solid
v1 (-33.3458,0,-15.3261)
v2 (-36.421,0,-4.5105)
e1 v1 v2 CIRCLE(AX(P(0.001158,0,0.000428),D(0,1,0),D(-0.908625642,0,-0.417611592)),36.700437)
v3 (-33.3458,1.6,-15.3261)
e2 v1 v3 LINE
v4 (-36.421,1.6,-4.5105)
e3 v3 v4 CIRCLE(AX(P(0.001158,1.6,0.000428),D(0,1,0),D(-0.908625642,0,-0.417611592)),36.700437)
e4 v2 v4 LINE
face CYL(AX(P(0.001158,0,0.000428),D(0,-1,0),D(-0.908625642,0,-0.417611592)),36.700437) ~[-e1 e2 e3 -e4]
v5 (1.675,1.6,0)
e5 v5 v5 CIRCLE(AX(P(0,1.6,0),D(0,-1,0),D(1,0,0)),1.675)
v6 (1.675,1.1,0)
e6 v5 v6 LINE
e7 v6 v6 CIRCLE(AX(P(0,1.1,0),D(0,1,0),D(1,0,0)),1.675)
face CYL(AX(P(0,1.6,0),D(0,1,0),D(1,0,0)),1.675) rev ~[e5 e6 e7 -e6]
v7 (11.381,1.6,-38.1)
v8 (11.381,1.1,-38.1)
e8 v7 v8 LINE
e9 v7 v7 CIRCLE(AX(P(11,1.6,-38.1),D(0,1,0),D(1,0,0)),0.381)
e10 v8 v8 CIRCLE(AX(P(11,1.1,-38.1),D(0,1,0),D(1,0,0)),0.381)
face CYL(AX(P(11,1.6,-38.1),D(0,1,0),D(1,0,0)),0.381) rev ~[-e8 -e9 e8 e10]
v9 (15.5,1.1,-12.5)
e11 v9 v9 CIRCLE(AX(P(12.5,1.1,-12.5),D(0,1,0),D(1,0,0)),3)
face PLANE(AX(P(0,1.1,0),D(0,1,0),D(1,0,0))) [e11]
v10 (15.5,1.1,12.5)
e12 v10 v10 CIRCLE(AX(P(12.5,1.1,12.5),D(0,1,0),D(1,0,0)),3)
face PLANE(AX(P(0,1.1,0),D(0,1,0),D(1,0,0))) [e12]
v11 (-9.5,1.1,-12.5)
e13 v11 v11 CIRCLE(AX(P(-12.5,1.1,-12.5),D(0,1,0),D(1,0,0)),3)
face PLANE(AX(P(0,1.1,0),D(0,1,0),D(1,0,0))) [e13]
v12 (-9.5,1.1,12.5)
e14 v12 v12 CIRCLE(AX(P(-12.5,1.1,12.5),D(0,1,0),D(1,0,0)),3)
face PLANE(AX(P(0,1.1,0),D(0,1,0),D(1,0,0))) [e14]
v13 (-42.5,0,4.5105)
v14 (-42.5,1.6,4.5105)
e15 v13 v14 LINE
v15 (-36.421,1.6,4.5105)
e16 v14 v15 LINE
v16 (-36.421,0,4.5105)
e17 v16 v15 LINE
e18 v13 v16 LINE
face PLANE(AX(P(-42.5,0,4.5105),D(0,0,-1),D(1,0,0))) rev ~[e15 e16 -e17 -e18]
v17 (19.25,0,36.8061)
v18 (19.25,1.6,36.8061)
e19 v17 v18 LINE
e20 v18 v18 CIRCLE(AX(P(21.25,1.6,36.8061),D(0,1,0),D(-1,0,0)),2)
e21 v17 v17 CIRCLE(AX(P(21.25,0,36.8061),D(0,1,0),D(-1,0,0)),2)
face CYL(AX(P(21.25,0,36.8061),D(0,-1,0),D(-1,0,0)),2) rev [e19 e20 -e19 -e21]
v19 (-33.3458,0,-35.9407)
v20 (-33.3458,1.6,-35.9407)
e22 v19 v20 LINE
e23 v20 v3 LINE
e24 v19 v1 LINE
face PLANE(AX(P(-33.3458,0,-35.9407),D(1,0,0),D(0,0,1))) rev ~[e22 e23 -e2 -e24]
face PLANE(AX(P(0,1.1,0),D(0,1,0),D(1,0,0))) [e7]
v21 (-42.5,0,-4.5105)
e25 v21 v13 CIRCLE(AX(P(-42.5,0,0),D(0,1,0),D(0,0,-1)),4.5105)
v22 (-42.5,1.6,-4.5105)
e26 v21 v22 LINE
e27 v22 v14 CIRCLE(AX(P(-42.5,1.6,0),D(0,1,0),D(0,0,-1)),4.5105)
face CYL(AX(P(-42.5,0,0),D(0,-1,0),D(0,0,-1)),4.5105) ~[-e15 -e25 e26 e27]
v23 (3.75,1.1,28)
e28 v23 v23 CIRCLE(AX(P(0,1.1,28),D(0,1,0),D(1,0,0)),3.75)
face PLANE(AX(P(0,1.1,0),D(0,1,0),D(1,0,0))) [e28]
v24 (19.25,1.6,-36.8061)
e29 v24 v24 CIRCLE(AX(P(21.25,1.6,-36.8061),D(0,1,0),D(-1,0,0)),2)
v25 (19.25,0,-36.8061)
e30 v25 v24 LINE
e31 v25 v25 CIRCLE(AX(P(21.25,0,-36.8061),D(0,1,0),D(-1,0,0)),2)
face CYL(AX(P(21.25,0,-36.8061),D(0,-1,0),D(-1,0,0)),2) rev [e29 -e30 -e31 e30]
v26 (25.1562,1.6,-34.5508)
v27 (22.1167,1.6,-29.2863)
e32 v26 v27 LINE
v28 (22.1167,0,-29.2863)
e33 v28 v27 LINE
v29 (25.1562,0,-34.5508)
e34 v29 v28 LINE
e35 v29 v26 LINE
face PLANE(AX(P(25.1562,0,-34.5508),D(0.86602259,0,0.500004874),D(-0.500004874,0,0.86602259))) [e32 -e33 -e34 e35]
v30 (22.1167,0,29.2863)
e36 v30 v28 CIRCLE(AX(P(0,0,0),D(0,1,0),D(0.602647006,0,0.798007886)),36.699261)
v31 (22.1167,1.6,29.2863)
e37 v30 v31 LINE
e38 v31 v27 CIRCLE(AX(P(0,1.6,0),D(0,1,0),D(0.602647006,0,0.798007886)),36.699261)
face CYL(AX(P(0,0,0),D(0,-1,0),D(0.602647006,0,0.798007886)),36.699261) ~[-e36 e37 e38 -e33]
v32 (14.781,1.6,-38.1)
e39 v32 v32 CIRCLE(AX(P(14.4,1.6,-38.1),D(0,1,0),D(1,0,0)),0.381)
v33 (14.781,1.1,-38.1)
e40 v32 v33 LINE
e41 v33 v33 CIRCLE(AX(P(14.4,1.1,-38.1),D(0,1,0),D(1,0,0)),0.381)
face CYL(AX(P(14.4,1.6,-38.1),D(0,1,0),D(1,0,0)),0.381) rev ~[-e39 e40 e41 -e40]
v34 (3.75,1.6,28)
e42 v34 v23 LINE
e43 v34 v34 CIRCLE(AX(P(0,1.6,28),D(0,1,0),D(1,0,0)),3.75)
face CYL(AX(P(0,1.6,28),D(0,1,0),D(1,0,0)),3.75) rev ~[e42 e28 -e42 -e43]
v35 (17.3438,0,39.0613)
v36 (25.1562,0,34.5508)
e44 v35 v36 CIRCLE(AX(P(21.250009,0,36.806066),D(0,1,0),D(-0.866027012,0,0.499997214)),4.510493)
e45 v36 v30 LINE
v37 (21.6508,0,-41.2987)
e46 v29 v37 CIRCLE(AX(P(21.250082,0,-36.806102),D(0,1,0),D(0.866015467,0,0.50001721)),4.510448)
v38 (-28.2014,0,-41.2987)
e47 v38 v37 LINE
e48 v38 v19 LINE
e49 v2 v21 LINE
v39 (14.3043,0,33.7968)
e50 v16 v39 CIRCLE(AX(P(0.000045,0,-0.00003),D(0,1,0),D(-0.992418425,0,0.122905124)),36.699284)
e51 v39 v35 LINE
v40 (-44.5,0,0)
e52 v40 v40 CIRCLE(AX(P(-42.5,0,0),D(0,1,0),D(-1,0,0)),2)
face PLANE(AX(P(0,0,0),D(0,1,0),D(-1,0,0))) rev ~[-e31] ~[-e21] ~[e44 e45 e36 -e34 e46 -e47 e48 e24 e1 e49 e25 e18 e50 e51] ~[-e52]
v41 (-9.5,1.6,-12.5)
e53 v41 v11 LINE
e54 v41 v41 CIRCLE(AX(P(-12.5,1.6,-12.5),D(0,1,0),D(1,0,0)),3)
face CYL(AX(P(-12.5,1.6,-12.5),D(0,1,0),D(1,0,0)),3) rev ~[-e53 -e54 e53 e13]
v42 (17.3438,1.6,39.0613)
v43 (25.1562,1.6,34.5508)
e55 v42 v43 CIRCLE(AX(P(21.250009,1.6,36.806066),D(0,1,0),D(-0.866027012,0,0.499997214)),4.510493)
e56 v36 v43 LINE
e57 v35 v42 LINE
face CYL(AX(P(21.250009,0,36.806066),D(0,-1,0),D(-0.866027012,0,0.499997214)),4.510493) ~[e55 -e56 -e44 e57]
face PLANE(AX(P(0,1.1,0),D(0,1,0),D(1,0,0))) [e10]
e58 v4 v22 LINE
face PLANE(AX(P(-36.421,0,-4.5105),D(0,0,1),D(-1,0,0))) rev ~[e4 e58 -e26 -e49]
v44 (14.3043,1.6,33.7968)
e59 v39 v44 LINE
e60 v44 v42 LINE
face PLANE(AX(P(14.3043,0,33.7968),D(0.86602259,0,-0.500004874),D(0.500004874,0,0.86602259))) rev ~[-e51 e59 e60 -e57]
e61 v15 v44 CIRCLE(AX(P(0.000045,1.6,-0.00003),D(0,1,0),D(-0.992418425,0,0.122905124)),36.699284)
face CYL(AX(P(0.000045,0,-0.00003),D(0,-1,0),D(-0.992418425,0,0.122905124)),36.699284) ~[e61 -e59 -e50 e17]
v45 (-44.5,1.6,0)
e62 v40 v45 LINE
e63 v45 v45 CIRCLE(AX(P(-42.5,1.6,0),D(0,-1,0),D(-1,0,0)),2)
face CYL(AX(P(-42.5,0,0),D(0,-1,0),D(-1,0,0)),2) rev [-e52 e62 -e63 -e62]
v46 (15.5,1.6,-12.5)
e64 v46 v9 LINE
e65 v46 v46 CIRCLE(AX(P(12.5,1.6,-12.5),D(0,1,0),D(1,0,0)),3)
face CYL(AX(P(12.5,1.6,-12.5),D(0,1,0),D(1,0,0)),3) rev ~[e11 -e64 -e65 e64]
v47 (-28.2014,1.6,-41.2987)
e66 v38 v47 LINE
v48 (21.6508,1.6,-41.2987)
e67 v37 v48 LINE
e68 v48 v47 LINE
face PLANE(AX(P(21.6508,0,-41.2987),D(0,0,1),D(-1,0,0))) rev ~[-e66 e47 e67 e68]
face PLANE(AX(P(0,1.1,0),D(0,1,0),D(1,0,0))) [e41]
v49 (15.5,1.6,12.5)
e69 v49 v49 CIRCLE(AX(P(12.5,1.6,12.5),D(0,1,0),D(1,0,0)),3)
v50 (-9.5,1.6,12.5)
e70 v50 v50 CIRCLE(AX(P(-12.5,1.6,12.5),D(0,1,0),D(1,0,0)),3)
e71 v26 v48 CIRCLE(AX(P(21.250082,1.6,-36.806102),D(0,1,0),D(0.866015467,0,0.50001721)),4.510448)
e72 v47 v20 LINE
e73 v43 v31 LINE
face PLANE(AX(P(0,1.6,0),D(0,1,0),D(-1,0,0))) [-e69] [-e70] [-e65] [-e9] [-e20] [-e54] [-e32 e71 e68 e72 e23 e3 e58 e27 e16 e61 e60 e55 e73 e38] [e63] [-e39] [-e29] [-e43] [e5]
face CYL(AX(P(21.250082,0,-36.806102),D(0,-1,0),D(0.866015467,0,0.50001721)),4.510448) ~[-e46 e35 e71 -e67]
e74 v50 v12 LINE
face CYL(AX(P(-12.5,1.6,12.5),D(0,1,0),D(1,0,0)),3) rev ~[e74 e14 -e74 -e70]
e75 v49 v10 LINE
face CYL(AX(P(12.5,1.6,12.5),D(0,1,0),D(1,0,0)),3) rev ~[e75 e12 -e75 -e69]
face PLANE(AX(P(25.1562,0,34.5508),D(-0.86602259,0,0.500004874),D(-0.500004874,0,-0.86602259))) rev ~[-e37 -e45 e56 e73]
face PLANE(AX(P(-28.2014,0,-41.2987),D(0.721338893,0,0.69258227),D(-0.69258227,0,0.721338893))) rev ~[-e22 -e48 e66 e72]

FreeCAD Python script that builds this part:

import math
import FreeCAD as App
import Part
import Sketcher
from FreeCAD import Vector
Q = App.Units.Quantity

doc = App.newDocument("Part")
params = doc.addObject("Spreadsheet::Sheet", "Params")
for row, (alias, value) in enumerate([
    ("sketch1_diameter", "4 mm"),
    ("pad1_length", "1.6 mm"),
    ("sketch2_diameter", "6 mm"),
    ("sketch2_diameter2", "7.5 mm"),
    ("sketch2_diameter3", "3.35 mm"),
    ("pocket1_length", "0.5 mm"),
], start=1):
    params.set(f"A{row}", alias)
    params.set(f"B{row}", "=" + value)
    params.setAlias(f"B{row}", alias)

body = doc.addObject("PartDesign::Body", "Body")

# Sketch on XZ plane
sketch1 = doc.addObject("Sketcher::SketchObject", "Sketch")
body.addObject(sketch1)
sketch1.AttachmentSupport = (doc.XZ_Plane, [""])
sketch1.MapMode = "FlatFace"
sketch1.addGeometry([
    Part.LineSegment(Vector(22.1167, -29.2863, 0), Vector(25.1562, -34.5508, 0)),  # 0
    Part.ArcOfCircle(Part.Circle(Vector(21.25, -36.8061, 0), Vector(0, 0, 1), 4.510518), math.radians(-84.901947), math.radians(30.000598)),  # 1
    Part.LineSegment(Vector(21.6508, -41.2987, 0), Vector(-28.2014, -41.2987, 0)),  # 2
    Part.LineSegment(Vector(-28.2014, -41.2987, 0), Vector(-33.3458, -35.9407, 0)),  # 3
    Part.LineSegment(Vector(-33.3458, -35.9407, 0), Vector(-33.3458, -15.3261, 0)),  # 4
    Part.ArcOfCircle(Part.Circle(Vector(0.001158, 0.000428, 0), Vector(0, 0, 1), 36.700437), math.radians(-172.939802), math.radians(-155.316111)),  # 5
    Part.LineSegment(Vector(-36.421, -4.5105, 0), Vector(-42.5, -4.5105, 0)),  # 6
    Part.ArcOfCircle(Part.Circle(Vector(-42.5, 0, 0), Vector(0, 0, 1), 4.5105), math.radians(90), math.radians(270)),  # 7
    Part.LineSegment(Vector(-42.5, 4.5105, 0), Vector(-36.421, 4.5105, 0)),  # 8
    Part.ArcOfCircle(Part.Circle(Vector(0, 0, 0), Vector(0, 0, 1), 36.699261), math.radians(67.05977), math.radians(172.940242)),  # 9
    Part.LineSegment(Vector(14.3043, 33.7968, 0), Vector(17.3438, 39.0613, 0)),  # 10
    Part.ArcOfCircle(Part.Circle(Vector(21.25, 36.8061, 0), Vector(0, 0, 1), 4.510468), math.radians(-30.000598), math.radians(150.000502)),  # 11
    Part.LineSegment(Vector(25.1562, 34.5508, 0), Vector(22.1167, 29.2863, 0)),  # 12
    Part.ArcOfCircle(Part.Circle(Vector(0, 0, 0), Vector(0, 0, 1), 36.699261), math.radians(-52.940288), math.radians(52.940288)),  # 13
    Part.Circle(Vector(21.25, -36.8061, 0), Vector(0, 0, 1), 2),  # 14
    Part.Circle(Vector(-42.5, 0, 0), Vector(0, 0, 1), 2),  # 15
    Part.Circle(Vector(21.25, 36.8061, 0), Vector(0, 0, 1), 2),  # 16
], False)
sketch1.addConstraint([
    Sketcher.Constraint("Tangent", 0, 2, 1, 2),
    Sketcher.Constraint("Coincident", 1, 1, 2, 1),
    Sketcher.Constraint("Coincident", 2, 2, 3, 1),
    Sketcher.Constraint("Coincident", 3, 2, 4, 1),
    Sketcher.Constraint("Coincident", 4, 2, 5, 2),
    Sketcher.Constraint("Coincident", 5, 1, 6, 1),
    Sketcher.Constraint("Tangent", 6, 2, 7, 2),
    Sketcher.Constraint("Tangent", 7, 1, 8, 1),
    Sketcher.Constraint("Coincident", 8, 2, 9, 2),
    Sketcher.Constraint("Coincident", 9, 1, 10, 1),
    Sketcher.Constraint("Tangent", 10, 2, 11, 2),
    Sketcher.Constraint("Tangent", 11, 1, 12, 1),
    Sketcher.Constraint("Coincident", 12, 2, 13, 2),
    Sketcher.Constraint("Coincident", 13, 1, 0, 1),
    Sketcher.Constraint("Horizontal", 2),
    Sketcher.Constraint("Vertical", 4),
    Sketcher.Constraint("Horizontal", 6),
    Sketcher.Constraint("Horizontal", 8),
    Sketcher.Constraint("Coincident", 9, 3, -1, 1),
    Sketcher.Constraint("Coincident", 13, 3, -1, 1),
    Sketcher.Constraint("Coincident", 14, 3, 1, 3),
    Sketcher.Constraint("Coincident", 15, 3, 7, 3),
    Sketcher.Constraint("Coincident", 16, 3, 11, 3),
    Sketcher.Constraint("Equal", 1, 7),
    Sketcher.Constraint("Equal", 7, 11),
    Sketcher.Constraint("Equal", 9, 13),
    Sketcher.Constraint("Equal", 14, 15),
    Sketcher.Constraint("Equal", 15, 16),
    Sketcher.Constraint("Symmetric", 1, 3, 11, 3, -1),
    Sketcher.Constraint("Symmetric", 5, 1, 8, 2, -1),
    Sketcher.Constraint("Parallel", 10, 12),
    Sketcher.Constraint("Vertical", 0, 2, 11, 1),
    Sketcher.Constraint("Equal", 0, 10),
    Sketcher.Constraint("Diameter", 14, 4.0),
    Sketcher.Constraint("DistanceX", 7, 3, -1, 1, 42.5),
    Sketcher.Constraint("Angle", 0, Q("-59.9997 deg")),
    Sketcher.Constraint("Radius", 1, 4.5105),
    Sketcher.Constraint("Radius", 5, 36.7004),
    Sketcher.Constraint("Radius", 9, 36.6993),
    Sketcher.Constraint("DistanceX", -1, 1, 1, 3, 21.25),
    Sketcher.Constraint("DistanceX", 2, 2, 2, 1, 49.8522),
    Sketcher.Constraint("DistanceY", 4, 1, 4, 2, 20.6146),
    Sketcher.Constraint("DistanceY", 4, 2, -1, 1, 15.326),
    Sketcher.Constraint("DistanceX", 5, 3, 0, 2, 25.155),
    Sketcher.Constraint("DistanceY", 1, 1, 0, 2, 6.748),
])
sketch1.setExpression("Constraints[33]", "Params.sketch1_diameter")
pad1 = doc.addObject("PartDesign::Pad", "Pad")
body.addObject(pad1)
pad1.Profile = sketch1
pad1.setExpression("Length", "Params.pad1_length")
pad1.Reversed = True

# Sketch on XZ plane
sketch2 = doc.addObject("Sketcher::SketchObject", "Sketch001")
body.addObject(sketch2)
sketch2.AttachmentSupport = (doc.XZ_Plane, [""])
sketch2.MapMode = "FlatFace"
sketch2.AttachmentOffset = App.Placement(Vector(0, 0, -1.6), App.Rotation())
sketch2.addGeometry([
    Part.Circle(Vector(12.5, -12.5, 0), Vector(0, 0, 1), 3),  # 0
    Part.Circle(Vector(-12.5, -12.5, 0), Vector(0, 0, 1), 3),  # 1
    Part.Circle(Vector(-12.5, 12.5, 0), Vector(0, 0, 1), 3),  # 2
    Part.Circle(Vector(12.5, 12.5, 0), Vector(0, 0, 1), 3),  # 3
    Part.Circle(Vector(0, 0, 0), Vector(0, 0, 1), 1.675),  # 4
    Part.Circle(Vector(0, 28, 0), Vector(0, 0, 1), 3.75),  # 5
    Part.Circle(Vector(11, -38.1, 0), Vector(0, 0, 1), 0.381),  # 6
    Part.Circle(Vector(14.4, -38.1, 0), Vector(0, 0, 1), 0.381),  # 7
], False)
sketch2.addConstraint([
    Sketcher.Constraint("Coincident", 4, 3, -1, 1),
    Sketcher.Constraint("Equal", 0, 1),
    Sketcher.Constraint("Equal", 1, 2),
    Sketcher.Constraint("Equal", 2, 3),
    Sketcher.Constraint("Equal", 6, 7),
    Sketcher.Constraint("Symmetric", 0, 3, 2, 3, -1, 1),
    Sketcher.Constraint("Symmetric", 1, 3, 3, 3, -1, 1),
    Sketcher.Constraint("Symmetric", 0, 3, 1, 3, -2),
    Sketcher.Constraint("PointOnObject", 5, 3, -2),
    Sketcher.Constraint("Horizontal", 6, 3, 7, 3),
    Sketcher.Constraint("Diameter", 0, 6.0),
    Sketcher.Constraint("Diameter", 5, 7.5),
    Sketcher.Constraint("Diameter", 4, 3.35),
    Sketcher.Constraint("Diameter", 6, 0.762),
    Sketcher.Constraint("DistanceY", -1, 1, 5, 3, 28.0),
    Sketcher.Constraint("DistanceX", -1, 1, 6, 3, 11.0),
    Sketcher.Constraint("DistanceX", -1, 1, 0, 3, 12.5),
    Sketcher.Constraint("DistanceY", 0, 3, -1, 1, 12.5),
    Sketcher.Constraint("DistanceY", 6, 3, -1, 1, 38.1),
    Sketcher.Constraint("DistanceX", 6, 3, 7, 3, 3.4),
])
sketch2.setExpression("Constraints[10]", "Params.sketch2_diameter")
sketch2.setExpression("Constraints[11]", "Params.sketch2_diameter2")
sketch2.setExpression("Constraints[12]", "Params.sketch2_diameter3")
pocket1 = doc.addObject("PartDesign::Pocket", "Pocket")
body.addObject(pocket1)
pocket1.Profile = sketch2
pocket1.setExpression("Length", "Params.pocket1_length")
pocket1.Reversed = True

doc.recompute()
